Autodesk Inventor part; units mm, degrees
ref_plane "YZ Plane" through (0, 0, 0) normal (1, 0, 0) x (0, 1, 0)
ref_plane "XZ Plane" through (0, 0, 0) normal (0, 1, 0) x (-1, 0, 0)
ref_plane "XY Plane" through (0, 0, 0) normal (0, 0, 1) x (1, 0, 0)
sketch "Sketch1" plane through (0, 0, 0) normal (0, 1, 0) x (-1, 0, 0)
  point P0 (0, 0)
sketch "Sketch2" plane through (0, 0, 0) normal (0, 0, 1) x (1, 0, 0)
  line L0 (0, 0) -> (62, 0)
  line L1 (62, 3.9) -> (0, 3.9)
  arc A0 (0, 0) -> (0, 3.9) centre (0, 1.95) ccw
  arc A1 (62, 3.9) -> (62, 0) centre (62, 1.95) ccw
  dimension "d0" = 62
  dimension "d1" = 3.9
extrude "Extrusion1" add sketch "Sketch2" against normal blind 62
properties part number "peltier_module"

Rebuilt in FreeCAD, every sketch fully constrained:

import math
import FreeCAD as App
import Part
import Sketcher
from FreeCAD import Vector
Q = App.Units.Quantity

doc = App.newDocument("Part")
params = doc.addObject("Spreadsheet::Sheet", "Params")
for row, (alias, value) in enumerate([
    ("sketch1_width", "62 mm"),
    ("sketch1_radius", "1.95 mm"),
    ("pad1_length", "62 mm"),
], start=1):
    params.set(f"A{row}", alias)
    params.set(f"B{row}", "=" + value)
    params.setAlias(f"B{row}", alias)

body = doc.addObject("PartDesign::Body", "Body")

sketch1 = body.newObject("Sketcher::SketchObject", "Sketch")
sketch1.AttachmentSupport = (doc.getObject("XY_Plane"), [""])
sketch1.MapMode = "FlatFace"
sketch1.addGeometry([
    Part.ArcOfCircle(Part.Circle(Vector(0, 1.9, 0), Vector(0, 0, 1), 1.9), math.radians(-90), math.radians(90)),
    Part.LineSegment(Vector(0, 0, 0), Vector(62, 0, 0)),
    Part.ArcOfCircle(Part.Circle(Vector(62, 1.9, 0), Vector(0, 0, 1), 1.9), math.radians(90), math.radians(270)),
    Part.LineSegment(Vector(62, 3.9, 0), Vector(0, 3.9, 0)),
], False)
sketch1.addConstraint([
    Sketcher.Constraint("Tangent", 0, 1, 1, 1),
    Sketcher.Constraint("Tangent", 1, 2, 2, 2),
    Sketcher.Constraint("Tangent", 2, 1, 3, 1),
    Sketcher.Constraint("Tangent", 3, 2, 0, 2),
    Sketcher.Constraint("Horizontal", 1),
    Sketcher.Constraint("Horizontal", 3),
    Sketcher.Constraint("Coincident", 0, 1, -1, 1),
    Sketcher.Constraint("DistanceX", 1, 1, 1, 2, Q("62 mm")),
    Sketcher.Constraint("Radius", 0, Q("1.95 mm")),
])
sketch1.setExpression("Constraints[7]", "Params.sketch1_width")
sketch1.setExpression("Constraints[8]", "Params.sketch1_radius")
pad1 = body.newObject("PartDesign::Pad", "Pad")
pad1.Profile = sketch1
pad1.setExpression("Length", "Params.pad1_length")
pad1.Reversed = True

doc.recompute()
